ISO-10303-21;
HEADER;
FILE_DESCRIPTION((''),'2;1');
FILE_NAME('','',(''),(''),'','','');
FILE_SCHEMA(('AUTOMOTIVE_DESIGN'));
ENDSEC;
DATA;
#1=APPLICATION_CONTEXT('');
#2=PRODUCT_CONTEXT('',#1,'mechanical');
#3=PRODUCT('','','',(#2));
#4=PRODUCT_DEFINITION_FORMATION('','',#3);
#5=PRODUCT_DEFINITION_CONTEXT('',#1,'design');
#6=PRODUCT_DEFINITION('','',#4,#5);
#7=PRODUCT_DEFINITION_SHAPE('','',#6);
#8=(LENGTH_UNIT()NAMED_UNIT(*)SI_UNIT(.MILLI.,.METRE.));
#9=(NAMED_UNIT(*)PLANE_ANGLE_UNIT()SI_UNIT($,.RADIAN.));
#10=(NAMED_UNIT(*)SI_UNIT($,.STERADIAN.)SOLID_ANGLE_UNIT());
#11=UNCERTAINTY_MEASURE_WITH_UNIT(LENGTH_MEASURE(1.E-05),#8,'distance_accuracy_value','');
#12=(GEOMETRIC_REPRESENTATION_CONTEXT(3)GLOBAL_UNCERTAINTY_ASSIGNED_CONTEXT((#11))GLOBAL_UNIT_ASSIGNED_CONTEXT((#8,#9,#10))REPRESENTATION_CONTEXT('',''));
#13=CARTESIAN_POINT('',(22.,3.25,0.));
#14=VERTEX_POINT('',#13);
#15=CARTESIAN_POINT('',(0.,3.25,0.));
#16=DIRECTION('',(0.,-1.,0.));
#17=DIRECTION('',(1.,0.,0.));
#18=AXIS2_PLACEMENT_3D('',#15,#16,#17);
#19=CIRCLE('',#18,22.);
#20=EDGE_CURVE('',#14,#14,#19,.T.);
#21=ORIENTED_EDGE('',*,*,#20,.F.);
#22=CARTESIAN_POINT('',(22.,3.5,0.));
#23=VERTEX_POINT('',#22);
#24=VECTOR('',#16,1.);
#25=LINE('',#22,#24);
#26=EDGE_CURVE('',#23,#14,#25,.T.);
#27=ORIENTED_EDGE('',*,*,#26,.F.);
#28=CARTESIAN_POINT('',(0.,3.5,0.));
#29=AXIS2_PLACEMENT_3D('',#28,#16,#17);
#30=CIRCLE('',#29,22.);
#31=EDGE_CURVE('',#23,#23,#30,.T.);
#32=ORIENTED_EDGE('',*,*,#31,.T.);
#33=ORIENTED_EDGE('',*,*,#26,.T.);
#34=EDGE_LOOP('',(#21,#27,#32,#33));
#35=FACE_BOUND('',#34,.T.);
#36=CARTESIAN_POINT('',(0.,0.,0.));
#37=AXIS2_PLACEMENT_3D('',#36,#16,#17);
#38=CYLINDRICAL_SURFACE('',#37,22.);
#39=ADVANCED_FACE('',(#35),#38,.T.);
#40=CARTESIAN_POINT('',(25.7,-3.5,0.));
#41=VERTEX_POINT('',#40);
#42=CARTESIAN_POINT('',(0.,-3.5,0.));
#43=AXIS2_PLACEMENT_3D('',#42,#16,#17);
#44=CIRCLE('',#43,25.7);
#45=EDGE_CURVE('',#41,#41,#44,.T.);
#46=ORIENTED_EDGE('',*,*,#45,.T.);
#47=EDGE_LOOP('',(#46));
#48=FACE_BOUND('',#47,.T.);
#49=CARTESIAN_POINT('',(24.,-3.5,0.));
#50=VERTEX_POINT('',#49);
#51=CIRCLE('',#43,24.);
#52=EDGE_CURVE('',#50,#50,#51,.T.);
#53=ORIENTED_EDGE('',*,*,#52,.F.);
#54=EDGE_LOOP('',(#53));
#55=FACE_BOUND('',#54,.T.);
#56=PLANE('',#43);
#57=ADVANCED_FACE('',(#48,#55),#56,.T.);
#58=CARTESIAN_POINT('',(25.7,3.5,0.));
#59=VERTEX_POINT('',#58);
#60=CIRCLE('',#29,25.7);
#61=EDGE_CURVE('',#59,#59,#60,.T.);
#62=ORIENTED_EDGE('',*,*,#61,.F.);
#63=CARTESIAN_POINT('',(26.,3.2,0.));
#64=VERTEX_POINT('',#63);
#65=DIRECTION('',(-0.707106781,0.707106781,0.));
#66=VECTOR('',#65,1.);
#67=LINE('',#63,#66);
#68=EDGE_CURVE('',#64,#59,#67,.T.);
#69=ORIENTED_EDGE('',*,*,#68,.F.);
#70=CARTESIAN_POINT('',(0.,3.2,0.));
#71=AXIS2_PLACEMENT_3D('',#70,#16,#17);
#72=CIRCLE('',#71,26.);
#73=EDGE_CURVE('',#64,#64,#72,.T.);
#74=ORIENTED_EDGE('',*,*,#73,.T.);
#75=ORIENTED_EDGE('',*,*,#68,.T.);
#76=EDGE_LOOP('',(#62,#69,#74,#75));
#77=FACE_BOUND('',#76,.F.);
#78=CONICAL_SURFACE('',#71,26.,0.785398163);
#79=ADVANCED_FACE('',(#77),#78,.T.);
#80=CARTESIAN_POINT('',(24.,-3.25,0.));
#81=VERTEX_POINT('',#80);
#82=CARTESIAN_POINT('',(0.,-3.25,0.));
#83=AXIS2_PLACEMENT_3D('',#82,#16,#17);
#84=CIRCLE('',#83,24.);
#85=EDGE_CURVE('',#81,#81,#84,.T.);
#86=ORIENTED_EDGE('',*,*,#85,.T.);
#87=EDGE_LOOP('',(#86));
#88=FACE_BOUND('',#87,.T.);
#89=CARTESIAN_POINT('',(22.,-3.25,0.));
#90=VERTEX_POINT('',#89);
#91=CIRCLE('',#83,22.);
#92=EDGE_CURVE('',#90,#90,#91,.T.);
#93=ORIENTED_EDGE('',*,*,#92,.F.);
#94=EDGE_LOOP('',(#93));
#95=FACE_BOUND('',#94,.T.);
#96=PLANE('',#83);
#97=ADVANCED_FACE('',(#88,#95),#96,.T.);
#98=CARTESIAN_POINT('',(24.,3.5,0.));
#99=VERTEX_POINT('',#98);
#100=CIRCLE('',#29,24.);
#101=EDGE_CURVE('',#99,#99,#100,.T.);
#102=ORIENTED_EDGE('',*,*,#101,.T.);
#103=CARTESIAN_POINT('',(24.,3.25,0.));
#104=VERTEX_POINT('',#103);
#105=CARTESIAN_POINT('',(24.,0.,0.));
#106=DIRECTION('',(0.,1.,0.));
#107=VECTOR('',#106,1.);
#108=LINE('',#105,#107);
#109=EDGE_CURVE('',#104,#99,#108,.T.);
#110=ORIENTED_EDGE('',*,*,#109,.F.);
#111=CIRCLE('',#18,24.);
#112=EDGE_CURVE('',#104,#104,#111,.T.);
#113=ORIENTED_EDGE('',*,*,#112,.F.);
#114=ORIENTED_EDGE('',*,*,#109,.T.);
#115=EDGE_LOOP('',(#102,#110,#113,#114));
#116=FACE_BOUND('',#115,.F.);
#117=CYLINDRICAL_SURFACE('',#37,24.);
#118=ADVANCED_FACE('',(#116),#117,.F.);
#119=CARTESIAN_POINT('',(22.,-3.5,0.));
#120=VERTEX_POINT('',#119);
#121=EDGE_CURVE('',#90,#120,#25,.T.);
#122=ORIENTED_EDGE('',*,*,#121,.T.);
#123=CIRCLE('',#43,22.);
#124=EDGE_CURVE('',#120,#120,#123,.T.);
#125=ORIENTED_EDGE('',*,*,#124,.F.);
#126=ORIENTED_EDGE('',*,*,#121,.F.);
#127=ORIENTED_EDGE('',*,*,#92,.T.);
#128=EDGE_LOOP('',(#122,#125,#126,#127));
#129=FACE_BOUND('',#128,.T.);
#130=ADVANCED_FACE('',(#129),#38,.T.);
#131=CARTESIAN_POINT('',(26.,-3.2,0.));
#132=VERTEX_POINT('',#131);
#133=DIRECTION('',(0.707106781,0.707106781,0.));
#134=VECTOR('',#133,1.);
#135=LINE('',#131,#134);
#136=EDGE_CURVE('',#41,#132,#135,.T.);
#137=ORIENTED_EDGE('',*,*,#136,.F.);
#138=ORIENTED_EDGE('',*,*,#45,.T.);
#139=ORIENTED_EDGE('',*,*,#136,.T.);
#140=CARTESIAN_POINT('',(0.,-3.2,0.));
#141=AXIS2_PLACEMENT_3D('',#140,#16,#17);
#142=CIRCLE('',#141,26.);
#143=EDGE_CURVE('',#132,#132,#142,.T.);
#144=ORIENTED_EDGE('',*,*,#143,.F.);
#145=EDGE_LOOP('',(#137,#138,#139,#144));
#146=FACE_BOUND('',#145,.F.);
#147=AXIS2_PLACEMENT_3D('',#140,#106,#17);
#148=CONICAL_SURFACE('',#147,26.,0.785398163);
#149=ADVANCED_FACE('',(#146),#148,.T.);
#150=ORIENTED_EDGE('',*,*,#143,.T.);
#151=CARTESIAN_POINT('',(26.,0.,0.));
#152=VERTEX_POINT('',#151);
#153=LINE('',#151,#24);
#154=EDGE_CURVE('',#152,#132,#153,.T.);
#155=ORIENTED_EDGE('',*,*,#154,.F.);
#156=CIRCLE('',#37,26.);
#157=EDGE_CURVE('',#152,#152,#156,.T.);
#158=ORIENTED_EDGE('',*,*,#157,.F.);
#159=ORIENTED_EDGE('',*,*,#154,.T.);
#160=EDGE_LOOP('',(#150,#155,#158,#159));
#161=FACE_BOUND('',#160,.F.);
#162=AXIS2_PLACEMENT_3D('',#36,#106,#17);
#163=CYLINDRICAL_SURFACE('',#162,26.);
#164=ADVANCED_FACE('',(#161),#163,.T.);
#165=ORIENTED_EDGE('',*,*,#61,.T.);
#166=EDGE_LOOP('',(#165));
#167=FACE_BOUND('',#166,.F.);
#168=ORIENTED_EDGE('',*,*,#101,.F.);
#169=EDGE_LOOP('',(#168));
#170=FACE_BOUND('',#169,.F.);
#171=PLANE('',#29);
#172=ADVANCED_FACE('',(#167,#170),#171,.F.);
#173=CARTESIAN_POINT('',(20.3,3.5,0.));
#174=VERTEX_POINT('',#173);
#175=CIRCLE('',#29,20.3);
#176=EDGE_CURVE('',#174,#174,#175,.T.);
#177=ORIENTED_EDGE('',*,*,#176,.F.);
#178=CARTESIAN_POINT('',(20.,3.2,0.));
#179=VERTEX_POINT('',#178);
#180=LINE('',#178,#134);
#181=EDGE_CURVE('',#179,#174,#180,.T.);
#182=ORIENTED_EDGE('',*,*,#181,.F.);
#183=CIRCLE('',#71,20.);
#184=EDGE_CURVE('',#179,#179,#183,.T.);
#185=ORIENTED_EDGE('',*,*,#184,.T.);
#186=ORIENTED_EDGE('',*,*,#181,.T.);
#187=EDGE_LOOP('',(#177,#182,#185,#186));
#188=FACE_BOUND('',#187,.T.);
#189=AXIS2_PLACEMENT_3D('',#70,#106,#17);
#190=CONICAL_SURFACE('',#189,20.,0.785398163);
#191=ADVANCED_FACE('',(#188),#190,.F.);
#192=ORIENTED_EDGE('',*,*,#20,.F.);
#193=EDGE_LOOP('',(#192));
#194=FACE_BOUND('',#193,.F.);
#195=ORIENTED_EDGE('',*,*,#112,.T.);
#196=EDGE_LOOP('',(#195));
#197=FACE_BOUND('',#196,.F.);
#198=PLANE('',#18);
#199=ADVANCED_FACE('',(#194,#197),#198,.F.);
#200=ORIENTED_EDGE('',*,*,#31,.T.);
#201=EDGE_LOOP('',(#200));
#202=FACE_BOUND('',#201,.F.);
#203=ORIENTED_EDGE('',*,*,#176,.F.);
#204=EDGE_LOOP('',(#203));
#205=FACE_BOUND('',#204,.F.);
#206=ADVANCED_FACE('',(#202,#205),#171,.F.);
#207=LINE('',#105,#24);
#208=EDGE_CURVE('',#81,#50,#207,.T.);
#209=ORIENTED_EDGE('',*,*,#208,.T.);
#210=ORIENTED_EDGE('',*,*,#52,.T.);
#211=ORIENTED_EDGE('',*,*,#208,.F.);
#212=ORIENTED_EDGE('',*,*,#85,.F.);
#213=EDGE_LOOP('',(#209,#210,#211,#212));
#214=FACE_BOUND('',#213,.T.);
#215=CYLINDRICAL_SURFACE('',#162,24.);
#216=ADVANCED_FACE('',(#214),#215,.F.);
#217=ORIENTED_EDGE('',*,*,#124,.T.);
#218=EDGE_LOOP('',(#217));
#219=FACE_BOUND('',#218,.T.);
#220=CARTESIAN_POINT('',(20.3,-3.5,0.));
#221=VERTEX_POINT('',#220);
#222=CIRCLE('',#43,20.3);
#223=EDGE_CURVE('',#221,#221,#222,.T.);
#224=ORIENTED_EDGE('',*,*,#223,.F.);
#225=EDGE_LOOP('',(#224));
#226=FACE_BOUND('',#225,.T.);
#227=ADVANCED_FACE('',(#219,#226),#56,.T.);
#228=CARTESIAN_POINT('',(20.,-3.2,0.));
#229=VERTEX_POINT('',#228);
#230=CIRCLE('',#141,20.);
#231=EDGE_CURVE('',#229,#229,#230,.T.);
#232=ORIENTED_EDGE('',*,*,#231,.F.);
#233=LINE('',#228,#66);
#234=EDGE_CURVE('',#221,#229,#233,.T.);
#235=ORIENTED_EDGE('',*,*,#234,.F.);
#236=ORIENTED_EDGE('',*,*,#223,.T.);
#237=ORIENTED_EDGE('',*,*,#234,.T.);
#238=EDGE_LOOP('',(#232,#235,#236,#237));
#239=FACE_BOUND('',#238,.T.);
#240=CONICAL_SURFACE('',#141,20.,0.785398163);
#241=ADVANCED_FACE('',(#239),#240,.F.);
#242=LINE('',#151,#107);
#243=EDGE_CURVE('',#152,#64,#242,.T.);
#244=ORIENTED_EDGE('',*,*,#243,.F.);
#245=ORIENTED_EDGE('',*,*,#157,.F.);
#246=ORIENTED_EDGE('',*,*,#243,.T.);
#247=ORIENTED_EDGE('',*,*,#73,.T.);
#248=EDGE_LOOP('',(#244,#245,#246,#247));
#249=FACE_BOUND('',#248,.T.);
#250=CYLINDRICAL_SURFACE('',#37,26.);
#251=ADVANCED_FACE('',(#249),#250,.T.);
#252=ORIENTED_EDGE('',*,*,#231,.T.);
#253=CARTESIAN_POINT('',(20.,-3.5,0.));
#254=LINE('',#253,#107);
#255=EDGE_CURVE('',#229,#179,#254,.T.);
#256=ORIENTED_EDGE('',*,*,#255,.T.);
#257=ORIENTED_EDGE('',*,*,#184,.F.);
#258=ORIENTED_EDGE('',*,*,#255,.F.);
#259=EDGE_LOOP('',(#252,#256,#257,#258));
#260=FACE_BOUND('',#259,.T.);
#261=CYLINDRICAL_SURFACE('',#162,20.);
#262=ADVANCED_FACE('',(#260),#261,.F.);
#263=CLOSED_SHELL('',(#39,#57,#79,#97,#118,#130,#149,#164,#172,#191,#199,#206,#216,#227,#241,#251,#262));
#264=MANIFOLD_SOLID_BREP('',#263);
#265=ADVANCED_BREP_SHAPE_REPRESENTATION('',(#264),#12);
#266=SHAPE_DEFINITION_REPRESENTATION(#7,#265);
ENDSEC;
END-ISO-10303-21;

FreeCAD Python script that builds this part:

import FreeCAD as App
import Part
import Sketcher
from FreeCAD import Vector


def edges_at(feature, points):
    """Names of the edges that pass closest to the given points."""
    edges = feature.Shape.Edges
    near = lambda p: min(range(len(edges)), key=lambda i: edges[i].distToShape(Part.Vertex(*p))[0])
    return sorted({f"Edge{near(p) + 1}" for p in points})

doc = App.newDocument("Part")
body = doc.addObject("PartDesign::Body", "Body")
body.AllowCompound = True

sketch1 = doc.addObject("Sketcher::SketchObject", "Sketch")
body.addObject(sketch1)
sketch1.AttachmentSupport = (doc.XZ_Plane, [""])
sketch1.MapMode = "FlatFace"
sketch1.addGeometry(Part.Circle(Vector(0, 0, 0), Vector(0, 0, 1), 26), False)
sketch1.addGeometry(Part.Circle(Vector(0, 0, 0), Vector(0, 0, 1), 24), False)
sketch1.addGeometry(Part.Circle(Vector(0, 0, 0), Vector(0, 0, 1), 22), False)
sketch1.addGeometry(Part.Circle(Vector(0, 0, 0), Vector(0, 0, 1), 20), False)
sketch1.addConstraint(Sketcher.Constraint("Coincident", 0, 3, -1, 1))
sketch1.addConstraint(Sketcher.Constraint("Coincident", 1, 3, -1, 1))
sketch1.addConstraint(Sketcher.Constraint("Coincident", 2, 3, -1, 1))
sketch1.addConstraint(Sketcher.Constraint("Coincident", 3, 3, -1, 1))
sketch1.addConstraint(Sketcher.Constraint("Diameter", 0, 52.0))
sketch1.addConstraint(Sketcher.Constraint("Diameter", 1, 48.0))
sketch1.addConstraint(Sketcher.Constraint("Diameter", 2, 44.0))
sketch1.addConstraint(Sketcher.Constraint("Diameter", 3, 40.0))
pad1 = doc.addObject("PartDesign::Pad", "Pad")
body.addObject(pad1)
pad1.Profile = sketch1
pad1.Length = 7
pad1.Midplane = True

sketch2 = doc.addObject("Sketcher::SketchObject", "Sketch001")
body.addObject(sketch2)
sketch2.AttachmentSupport = (doc.XZ_Plane, [""])
sketch2.MapMode = "FlatFace"
sketch2.addGeometry(Part.Circle(Vector(0, 0, 0), Vector(0, 0, 1), 24), False)
sketch2.addGeometry(Part.Circle(Vector(0, 0, 0), Vector(0, 0, 1), 22), False)
sketch2.addConstraint(Sketcher.Constraint("Coincident", 0, 3, -1, 1))
sketch2.addConstraint(Sketcher.Constraint("Coincident", 1, 3, -1, 1))
sketch2.addConstraint(Sketcher.Constraint("Diameter", 0, 48.0))
sketch2.addConstraint(Sketcher.Constraint("Diameter", 1, 44.0))
pad2 = doc.addObject("PartDesign::Pad", "Pad001")
body.addObject(pad2)
pad2.Profile = sketch2
pad2.Length = 6.5
pad2.Midplane = True
doc.recompute()

chamfer = doc.addObject("PartDesign::Chamfer", "Chamfer")
body.addObject(chamfer)
chamfer.Base = (pad2, edges_at(pad2, [
    (-26, -3.5, 0),
    (-26, 3.5, 0),
    (-20, -3.5, 0),
    (-20, 3.5, 0),
]))
chamfer.Size = 0.3

doc.recompute()
